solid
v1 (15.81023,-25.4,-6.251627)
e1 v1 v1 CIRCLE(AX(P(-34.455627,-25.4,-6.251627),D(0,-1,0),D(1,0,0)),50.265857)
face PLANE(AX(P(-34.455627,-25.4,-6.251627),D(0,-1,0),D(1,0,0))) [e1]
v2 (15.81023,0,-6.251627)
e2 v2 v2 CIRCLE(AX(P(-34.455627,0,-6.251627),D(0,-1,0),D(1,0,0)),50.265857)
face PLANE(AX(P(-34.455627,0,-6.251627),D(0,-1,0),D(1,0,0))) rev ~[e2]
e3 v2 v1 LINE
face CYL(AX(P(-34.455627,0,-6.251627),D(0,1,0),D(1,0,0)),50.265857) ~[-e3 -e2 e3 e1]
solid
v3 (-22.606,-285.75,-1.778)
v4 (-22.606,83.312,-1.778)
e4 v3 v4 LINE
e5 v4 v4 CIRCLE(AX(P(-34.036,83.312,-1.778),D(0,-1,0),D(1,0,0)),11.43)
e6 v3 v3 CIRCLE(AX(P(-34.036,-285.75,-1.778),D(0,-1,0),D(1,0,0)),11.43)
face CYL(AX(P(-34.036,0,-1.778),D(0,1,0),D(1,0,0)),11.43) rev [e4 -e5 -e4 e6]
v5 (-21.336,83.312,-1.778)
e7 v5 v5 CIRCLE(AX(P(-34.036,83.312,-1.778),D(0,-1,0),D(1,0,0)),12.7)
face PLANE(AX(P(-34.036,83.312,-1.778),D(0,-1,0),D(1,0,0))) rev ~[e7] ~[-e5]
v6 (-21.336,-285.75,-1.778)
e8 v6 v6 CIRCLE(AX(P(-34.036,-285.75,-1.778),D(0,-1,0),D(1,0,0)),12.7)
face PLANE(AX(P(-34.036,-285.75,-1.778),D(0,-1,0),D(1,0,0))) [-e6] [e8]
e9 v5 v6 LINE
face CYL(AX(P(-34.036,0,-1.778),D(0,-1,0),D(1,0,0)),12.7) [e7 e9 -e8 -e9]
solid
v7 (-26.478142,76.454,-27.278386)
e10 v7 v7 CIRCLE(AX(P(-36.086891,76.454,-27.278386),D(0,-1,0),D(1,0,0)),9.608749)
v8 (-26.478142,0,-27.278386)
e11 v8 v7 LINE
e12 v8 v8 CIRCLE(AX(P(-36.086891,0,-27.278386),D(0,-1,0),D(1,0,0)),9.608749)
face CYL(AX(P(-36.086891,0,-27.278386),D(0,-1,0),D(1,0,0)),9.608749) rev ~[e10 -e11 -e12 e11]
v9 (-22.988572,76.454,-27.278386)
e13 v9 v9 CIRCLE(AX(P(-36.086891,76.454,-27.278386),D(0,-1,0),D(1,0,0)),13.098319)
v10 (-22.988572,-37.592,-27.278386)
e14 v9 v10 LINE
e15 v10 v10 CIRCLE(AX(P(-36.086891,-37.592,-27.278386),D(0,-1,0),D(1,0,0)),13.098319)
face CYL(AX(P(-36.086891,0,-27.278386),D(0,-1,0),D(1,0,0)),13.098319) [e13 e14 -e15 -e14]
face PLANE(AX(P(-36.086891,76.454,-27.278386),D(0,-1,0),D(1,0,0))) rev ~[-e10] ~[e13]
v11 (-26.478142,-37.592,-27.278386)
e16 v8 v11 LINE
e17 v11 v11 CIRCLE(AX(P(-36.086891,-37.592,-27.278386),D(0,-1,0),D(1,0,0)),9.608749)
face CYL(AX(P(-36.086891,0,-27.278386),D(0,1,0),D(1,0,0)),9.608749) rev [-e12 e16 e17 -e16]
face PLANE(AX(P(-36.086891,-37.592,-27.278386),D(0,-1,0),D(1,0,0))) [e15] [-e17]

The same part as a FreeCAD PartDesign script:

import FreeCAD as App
import Part
import Sketcher
from FreeCAD import Vector
Q = App.Units.Quantity

doc = App.newDocument("Part")
params = doc.addObject("Spreadsheet::Sheet", "Params")
for row, (alias, value) in enumerate([
    ("sketch1_diameter", "1 in"),
    ("sketch1_diameter2", "0.9 in"),
    ("pad1_length", "11.25 in"),
    ("pad1_length2", "3.28 in"),
    ("pad2_length", "1.48 in"),
    ("pad2_length2", "3.01 in"),
    ("pad3_length", "1 in"),
], start=1):
    params.set(f"A{row}", alias)
    params.set(f"B{row}", "=" + value)
    params.setAlias(f"B{row}", alias)

body = doc.addObject("PartDesign::Body", "Body")

# Sketch on XZ plane
sketch1 = body.newObject("Sketcher::SketchObject", "Sketch")
sketch1.AttachmentSupport = (doc.getObject("XZ_Plane"), [""])
sketch1.MapMode = "FlatFace"
sketch1.addGeometry([
    Part.Circle(Vector(0, 0, 0), Vector(0, 0, 1), 13),
    Part.Circle(Vector(0, 0, 0), Vector(0, 0, 1), 11),
], False)
sketch1.addConstraint([
    Sketcher.Constraint("Coincident", 0, 3, -1, 1),
    Sketcher.Constraint("Coincident", 1, 3, -1, 1),
    Sketcher.Constraint("Diameter", 0, Q("1 in")),
    Sketcher.Constraint("Diameter", 1, Q("0.9 in")),
])
sketch1.setExpression("Constraints[2]", "Params.sketch1_diameter")
sketch1.setExpression("Constraints[3]", "Params.sketch1_diameter2")
pad1 = body.newObject("PartDesign::Pad", "Pad")
pad1.Profile = sketch1
pad1.Type = "TwoLengths"
pad1.setExpression("Length", "Params.pad1_length")
pad1.setExpression("Length2", "Params.pad1_length2")
body2 = doc.addObject("PartDesign::Body", "Body001")

# Sketch on XZ plane
sketch2 = body2.newObject("Sketcher::SketchObject", "Sketch001")
sketch2.AttachmentSupport = (doc.getObject("XZ_Plane001"), [""])
sketch2.MapMode = "FlatFace"
sketch2.addGeometry([
    Part.Circle(Vector(-36, -27, 0), Vector(0, 0, 1), 13),
    Part.Circle(Vector(-36, -27, 0), Vector(0, 0, 1), 10),
], False)
sketch2.addConstraint([
    Sketcher.Constraint("Coincident", 1, 3, 0, 3),
    Sketcher.Constraint("Diameter", 0, Q("26.196638 mm")),
    Sketcher.Constraint("Diameter", 1, Q("19.217498 mm")),
    Sketcher.Constraint("DistanceX", 0, 3, -1, 1, Q("36.086891 mm")),
    Sketcher.Constraint("DistanceY", 0, 3, -1, 1, Q("27.278386 mm")),
])
pad2 = body2.newObject("PartDesign::Pad", "Pad001")
pad2.Profile = sketch2
pad2.Type = "TwoLengths"
pad2.setExpression("Length", "Params.pad2_length")
pad2.setExpression("Length2", "Params.pad2_length2")
body3 = doc.addObject("PartDesign::Body", "Body002")
doc.recompute()

body.Placement = App.Placement(Vector(-34.036, 0, -1.778), App.Rotation(Vector(0, 0, 1), 0))
boolean = body3.newObject("PartDesign::Boolean", "Boolean")
boolean.Type = "Fuse"
boolean.addObjects([body])
body4 = doc.addObject("PartDesign::Body", "Body003")

# Sketch on XZ plane
sketch3 = body4.newObject("Sketcher::SketchObject", "Sketch002")
sketch3.AttachmentSupport = (doc.getObject("XZ_Plane003"), [""])
sketch3.MapMode = "FlatFace"
sketch3.addGeometry(Part.Circle(Vector(-34, -6, 0), Vector(0, 0, 1), 50), False)
sketch3.addConstraint([
    Sketcher.Constraint("Diameter", 0, Q("100.531714 mm")),
    Sketcher.Constraint("DistanceX", 0, 3, -1, 1, Q("34.455627 mm")),
    Sketcher.Constraint("DistanceY", 0, 3, -1, 1, Q("6.251627 mm")),
])
pad3 = body4.newObject("PartDesign::Pad", "Pad002")
pad3.Profile = sketch3
pad3.setExpression("Length", "Params.pad3_length")

doc.recompute()
